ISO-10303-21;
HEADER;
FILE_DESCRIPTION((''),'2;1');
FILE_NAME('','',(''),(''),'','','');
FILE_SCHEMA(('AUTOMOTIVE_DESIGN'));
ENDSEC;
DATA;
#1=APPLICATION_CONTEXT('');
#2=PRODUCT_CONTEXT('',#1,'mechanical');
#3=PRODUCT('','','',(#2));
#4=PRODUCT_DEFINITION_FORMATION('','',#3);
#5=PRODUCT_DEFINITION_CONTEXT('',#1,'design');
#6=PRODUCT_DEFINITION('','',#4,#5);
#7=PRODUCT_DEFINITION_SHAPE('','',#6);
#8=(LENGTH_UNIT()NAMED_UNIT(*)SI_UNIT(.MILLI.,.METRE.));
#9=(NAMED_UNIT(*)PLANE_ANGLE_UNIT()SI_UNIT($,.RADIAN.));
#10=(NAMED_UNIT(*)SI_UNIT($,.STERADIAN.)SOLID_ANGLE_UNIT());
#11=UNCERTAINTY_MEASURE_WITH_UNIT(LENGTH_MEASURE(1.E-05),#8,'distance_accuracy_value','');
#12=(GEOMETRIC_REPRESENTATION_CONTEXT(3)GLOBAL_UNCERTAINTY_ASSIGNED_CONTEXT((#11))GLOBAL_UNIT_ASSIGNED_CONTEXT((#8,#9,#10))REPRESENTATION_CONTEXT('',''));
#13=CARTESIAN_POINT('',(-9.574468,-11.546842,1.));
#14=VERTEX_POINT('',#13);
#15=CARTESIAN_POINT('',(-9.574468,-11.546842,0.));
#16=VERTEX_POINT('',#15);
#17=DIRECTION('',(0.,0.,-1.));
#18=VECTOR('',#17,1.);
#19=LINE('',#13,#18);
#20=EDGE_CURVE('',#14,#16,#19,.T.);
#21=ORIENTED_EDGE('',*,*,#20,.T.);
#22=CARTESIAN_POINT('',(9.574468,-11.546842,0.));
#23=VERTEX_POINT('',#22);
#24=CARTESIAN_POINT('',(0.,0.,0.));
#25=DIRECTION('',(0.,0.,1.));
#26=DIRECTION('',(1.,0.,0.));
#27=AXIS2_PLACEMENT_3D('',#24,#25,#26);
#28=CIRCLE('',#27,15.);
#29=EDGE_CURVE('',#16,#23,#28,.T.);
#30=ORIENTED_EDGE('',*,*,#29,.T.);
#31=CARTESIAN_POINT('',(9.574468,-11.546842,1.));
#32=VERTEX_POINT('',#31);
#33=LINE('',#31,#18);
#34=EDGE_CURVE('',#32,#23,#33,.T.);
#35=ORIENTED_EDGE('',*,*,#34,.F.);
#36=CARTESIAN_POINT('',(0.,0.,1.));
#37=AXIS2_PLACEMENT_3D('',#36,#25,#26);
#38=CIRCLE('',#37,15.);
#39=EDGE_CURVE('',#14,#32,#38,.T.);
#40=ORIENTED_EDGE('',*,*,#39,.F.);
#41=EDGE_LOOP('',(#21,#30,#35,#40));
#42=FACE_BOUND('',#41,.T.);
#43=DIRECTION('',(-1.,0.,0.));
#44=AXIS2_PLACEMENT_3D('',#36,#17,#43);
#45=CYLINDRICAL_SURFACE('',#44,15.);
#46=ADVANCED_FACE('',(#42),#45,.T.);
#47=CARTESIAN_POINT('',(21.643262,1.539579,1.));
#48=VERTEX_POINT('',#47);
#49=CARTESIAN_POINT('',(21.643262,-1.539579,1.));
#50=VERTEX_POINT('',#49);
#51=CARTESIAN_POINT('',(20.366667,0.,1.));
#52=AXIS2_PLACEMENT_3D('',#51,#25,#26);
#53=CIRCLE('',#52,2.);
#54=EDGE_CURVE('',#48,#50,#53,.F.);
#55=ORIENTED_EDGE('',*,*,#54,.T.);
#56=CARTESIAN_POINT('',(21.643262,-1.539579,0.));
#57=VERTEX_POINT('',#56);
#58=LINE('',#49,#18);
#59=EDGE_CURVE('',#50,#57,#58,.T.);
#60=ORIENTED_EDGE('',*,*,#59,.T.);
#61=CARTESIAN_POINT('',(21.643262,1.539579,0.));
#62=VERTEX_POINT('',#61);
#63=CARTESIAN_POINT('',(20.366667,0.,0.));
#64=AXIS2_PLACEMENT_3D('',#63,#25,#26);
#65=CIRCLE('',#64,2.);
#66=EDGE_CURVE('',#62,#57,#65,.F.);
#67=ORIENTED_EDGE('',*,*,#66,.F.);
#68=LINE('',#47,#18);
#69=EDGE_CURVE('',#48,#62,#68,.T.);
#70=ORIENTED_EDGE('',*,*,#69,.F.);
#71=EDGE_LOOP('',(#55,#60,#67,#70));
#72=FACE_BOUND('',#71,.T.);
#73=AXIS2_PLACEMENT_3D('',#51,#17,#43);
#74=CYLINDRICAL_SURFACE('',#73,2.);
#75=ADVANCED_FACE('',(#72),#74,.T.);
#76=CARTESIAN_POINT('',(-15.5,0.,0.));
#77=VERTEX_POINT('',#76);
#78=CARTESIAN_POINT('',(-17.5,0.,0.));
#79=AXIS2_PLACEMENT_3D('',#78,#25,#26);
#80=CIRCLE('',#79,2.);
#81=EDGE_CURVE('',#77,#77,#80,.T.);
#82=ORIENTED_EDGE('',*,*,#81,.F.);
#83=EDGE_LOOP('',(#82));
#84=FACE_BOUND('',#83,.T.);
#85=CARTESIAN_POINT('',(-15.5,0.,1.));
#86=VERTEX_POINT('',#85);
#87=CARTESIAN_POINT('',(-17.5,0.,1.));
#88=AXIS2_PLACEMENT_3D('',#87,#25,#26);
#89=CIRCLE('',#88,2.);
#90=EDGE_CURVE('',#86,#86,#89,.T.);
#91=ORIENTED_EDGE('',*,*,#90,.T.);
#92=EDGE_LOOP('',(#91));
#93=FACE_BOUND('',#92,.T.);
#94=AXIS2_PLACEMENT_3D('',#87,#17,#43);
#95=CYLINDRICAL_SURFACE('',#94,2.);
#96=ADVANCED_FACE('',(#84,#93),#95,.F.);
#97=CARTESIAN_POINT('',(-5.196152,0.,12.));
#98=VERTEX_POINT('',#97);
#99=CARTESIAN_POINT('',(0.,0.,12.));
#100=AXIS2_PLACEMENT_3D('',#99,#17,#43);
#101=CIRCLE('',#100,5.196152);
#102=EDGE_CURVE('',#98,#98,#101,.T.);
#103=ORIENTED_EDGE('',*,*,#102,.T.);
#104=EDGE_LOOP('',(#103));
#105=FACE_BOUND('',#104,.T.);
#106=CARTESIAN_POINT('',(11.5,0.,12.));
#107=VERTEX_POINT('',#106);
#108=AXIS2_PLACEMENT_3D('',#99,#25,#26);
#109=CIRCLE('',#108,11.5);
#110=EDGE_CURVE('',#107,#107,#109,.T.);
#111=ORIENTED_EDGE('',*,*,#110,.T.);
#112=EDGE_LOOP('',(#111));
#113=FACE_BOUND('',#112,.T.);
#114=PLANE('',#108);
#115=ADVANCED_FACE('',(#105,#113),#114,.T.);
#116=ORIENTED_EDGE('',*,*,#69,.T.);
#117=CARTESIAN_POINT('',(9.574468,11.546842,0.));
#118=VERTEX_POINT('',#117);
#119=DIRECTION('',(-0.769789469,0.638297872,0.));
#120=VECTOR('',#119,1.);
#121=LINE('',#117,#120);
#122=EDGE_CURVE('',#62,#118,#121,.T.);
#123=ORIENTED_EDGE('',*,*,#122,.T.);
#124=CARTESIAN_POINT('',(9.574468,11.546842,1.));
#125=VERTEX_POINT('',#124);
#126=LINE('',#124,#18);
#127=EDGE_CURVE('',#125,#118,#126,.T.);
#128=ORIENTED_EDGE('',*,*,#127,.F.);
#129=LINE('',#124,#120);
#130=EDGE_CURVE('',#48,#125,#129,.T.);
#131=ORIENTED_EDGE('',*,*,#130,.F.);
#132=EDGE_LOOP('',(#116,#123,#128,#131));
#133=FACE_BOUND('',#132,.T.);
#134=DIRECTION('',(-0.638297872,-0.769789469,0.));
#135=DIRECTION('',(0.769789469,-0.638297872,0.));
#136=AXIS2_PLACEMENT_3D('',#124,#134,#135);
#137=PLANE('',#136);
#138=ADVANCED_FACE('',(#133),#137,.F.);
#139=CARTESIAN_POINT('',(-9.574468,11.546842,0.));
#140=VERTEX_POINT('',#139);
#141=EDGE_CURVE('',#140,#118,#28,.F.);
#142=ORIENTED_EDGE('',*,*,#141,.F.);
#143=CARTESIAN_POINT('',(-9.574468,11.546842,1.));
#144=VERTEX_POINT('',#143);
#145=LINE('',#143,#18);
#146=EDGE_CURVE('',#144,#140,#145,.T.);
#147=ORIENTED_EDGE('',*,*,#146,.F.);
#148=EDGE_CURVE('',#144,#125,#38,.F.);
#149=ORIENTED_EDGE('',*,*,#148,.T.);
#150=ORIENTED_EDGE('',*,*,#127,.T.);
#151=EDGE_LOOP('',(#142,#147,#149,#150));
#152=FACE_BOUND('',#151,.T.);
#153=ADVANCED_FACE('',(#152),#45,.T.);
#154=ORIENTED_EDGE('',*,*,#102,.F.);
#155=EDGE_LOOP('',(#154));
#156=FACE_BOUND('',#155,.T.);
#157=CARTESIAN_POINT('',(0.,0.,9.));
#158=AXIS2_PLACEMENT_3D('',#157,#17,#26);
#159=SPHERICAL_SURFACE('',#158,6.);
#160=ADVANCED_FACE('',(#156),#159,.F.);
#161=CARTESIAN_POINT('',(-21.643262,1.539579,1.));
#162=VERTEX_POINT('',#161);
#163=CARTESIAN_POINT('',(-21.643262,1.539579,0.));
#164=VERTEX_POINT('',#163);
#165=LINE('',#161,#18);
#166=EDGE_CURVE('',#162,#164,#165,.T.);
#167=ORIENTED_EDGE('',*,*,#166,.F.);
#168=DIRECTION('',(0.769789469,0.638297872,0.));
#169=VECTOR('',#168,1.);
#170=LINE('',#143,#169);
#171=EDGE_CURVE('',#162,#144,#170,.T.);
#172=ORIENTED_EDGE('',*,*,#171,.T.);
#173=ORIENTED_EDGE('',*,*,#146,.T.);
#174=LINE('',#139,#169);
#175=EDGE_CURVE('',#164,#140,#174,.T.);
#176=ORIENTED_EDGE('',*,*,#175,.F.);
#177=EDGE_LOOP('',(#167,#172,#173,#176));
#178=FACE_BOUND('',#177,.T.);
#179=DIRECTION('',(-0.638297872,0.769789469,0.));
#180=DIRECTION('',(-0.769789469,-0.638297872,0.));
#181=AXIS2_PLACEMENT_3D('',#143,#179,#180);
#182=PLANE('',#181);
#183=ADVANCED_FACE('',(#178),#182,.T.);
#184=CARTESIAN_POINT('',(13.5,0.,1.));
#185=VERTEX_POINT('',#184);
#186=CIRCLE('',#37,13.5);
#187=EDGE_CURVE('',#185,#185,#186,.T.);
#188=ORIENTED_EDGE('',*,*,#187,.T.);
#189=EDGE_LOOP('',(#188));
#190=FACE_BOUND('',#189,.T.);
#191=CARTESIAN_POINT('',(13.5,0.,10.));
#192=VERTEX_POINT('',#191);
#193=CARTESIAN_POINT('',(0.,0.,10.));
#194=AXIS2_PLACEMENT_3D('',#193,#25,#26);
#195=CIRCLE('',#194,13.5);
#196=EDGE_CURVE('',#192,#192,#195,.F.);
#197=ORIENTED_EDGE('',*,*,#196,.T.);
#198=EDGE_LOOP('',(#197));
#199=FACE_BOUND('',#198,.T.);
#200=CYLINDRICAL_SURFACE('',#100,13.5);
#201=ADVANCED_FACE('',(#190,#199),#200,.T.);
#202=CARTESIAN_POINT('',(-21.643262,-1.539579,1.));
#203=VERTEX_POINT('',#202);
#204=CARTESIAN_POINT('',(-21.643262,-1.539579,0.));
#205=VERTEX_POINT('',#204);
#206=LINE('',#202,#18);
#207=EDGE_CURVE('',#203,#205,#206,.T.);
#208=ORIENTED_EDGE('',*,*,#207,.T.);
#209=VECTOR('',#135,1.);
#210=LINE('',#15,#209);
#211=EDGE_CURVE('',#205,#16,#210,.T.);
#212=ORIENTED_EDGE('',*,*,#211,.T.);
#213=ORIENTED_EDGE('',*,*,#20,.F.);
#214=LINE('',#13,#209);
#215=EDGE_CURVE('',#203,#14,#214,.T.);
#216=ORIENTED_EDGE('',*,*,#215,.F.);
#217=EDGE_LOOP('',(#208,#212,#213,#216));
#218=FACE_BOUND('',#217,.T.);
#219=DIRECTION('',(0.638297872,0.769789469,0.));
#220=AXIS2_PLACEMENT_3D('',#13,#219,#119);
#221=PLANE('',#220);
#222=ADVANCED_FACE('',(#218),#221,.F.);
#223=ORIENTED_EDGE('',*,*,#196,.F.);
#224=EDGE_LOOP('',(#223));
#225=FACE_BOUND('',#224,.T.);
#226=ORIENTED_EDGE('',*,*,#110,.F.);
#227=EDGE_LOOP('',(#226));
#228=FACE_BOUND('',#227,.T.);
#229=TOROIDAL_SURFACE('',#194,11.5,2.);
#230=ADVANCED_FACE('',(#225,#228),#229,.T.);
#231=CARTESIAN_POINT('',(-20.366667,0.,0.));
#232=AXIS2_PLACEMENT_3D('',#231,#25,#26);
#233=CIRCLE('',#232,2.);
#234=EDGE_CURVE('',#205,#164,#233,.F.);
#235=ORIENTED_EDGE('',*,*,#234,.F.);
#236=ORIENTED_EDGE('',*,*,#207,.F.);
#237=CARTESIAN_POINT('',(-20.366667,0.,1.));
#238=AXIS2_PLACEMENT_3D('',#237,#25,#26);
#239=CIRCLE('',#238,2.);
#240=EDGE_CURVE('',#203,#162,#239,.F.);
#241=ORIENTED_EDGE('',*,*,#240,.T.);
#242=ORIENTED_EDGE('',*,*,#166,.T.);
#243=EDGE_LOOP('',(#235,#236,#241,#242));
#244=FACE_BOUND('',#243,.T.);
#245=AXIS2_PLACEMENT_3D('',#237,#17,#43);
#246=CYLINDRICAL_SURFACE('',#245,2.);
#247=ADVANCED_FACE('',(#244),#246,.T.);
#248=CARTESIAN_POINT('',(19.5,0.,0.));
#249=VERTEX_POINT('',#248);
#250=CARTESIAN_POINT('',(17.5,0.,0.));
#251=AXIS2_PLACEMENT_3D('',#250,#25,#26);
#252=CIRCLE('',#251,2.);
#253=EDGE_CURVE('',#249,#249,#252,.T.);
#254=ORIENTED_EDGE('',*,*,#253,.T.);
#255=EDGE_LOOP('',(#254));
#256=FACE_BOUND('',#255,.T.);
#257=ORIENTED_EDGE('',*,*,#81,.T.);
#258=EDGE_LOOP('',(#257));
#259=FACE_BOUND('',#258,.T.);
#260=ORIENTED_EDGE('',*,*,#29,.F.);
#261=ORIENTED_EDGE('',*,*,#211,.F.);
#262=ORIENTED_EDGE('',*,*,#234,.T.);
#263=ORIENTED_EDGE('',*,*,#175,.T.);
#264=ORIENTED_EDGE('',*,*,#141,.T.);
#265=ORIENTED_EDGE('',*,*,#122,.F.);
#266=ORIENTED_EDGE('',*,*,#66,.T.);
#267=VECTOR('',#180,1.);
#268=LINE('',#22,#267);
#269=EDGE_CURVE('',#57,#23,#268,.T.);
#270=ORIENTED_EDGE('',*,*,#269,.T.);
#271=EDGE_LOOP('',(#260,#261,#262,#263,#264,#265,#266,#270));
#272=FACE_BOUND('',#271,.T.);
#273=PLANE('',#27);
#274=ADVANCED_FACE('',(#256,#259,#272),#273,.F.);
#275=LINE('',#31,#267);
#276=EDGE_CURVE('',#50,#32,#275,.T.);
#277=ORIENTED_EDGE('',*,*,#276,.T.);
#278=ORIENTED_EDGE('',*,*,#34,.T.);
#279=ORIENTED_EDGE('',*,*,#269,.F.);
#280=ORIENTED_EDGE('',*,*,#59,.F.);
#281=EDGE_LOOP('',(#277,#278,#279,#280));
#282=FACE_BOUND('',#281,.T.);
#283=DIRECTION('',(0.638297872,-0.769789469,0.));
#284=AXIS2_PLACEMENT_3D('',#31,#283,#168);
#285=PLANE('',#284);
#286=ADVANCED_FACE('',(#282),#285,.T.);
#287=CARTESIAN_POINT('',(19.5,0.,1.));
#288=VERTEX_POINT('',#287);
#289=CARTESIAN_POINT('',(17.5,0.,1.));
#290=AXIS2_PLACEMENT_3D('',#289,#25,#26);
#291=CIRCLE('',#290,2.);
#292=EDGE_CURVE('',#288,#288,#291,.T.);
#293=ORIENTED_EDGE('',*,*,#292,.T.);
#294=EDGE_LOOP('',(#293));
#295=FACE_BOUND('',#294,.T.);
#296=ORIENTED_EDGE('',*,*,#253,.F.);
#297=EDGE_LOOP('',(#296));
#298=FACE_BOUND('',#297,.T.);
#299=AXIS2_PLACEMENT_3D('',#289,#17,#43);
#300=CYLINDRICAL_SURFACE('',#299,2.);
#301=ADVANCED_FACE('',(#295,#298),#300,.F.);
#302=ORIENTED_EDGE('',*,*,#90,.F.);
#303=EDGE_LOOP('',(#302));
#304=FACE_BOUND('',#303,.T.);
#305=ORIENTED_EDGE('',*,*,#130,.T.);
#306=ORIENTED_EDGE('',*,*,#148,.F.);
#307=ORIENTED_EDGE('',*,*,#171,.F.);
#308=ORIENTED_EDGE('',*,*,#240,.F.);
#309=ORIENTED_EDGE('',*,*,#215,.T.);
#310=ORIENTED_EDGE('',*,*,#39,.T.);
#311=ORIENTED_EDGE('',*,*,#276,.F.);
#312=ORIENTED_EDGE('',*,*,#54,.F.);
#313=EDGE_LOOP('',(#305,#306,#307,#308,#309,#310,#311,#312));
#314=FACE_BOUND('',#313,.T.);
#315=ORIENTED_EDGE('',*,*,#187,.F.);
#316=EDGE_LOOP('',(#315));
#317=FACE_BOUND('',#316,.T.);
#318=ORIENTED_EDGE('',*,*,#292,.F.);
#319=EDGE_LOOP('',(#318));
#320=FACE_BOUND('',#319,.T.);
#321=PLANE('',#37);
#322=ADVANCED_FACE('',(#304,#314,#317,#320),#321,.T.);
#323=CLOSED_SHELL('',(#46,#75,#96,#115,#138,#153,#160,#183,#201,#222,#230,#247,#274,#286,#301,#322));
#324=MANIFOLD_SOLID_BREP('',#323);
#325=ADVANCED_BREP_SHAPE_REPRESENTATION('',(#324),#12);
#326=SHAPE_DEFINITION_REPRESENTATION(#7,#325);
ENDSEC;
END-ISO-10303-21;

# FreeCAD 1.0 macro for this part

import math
import FreeCAD as App
import Part
import Sketcher

V = App.Vector


def edges_at(feature, points):
    """Names of the edges that pass closest to the given points."""
    edges = feature.Shape.Edges
    near = lambda p: min(range(len(edges)), key=lambda i: edges[i].distToShape(Part.Vertex(*p))[0])
    return sorted({f"Edge{near(p) + 1}" for p in points})

doc = App.newDocument("Part")
body = doc.addObject("PartDesign::Body", "Body")

sketch1 = body.newObject("Sketcher::SketchObject", "Sketch")
sketch1.AttachmentSupport = (doc.getObject("XY_Plane"), [""])
sketch1.MapMode = "FlatFace"
sketch1.addGeometry([
    Part.LineSegment(V(-9.574468, 11.546842, 0), V(-21.643262, 1.539579, 0)),
    Part.ArcOfCircle(Part.Circle(V(-20.366667, 0, 0), V(0, 0, 1), 2), math.radians(129.665013), math.radians(230.334987)),
    Part.LineSegment(V(-21.643262, -1.539579, 0), V(-9.574468, -11.546842, 0)),
    Part.ArcOfCircle(Part.Circle(V(0, 0, 0), V(0, 0, 1), 15), math.radians(-129.665013), math.radians(-50.334987)),
    Part.LineSegment(V(9.574468, -11.546842, 0), V(21.643262, -1.539579, 0)),
    Part.ArcOfCircle(Part.Circle(V(20.366667, 0, 0), V(0, 0, 1), 2), math.radians(-50.334987), math.radians(50.334987)),
    Part.LineSegment(V(21.643262, 1.539579, 0), V(9.574468, 11.546842, 0)),
    Part.ArcOfCircle(Part.Circle(V(0, 0, 0), V(0, 0, 1), 15), math.radians(50.334987), math.radians(129.665013)),
    Part.Circle(V(17.5, 0, 0), V(0, 0, 1), 2),
    Part.Circle(V(0, 0, 0), V(0, 0, 1), 13.5),
    Part.Circle(V(-17.5, 0, 0), V(0, 0, 1), 2),
], False)
sketch1.addConstraint([
    Sketcher.Constraint("Tangent", 0, 2, 1, 1),
    Sketcher.Constraint("Tangent", 1, 2, 2, 1),
    Sketcher.Constraint("Tangent", 2, 2, 3, 1),
    Sketcher.Constraint("Tangent", 3, 2, 4, 1),
    Sketcher.Constraint("Tangent", 4, 2, 5, 1),
    Sketcher.Constraint("Tangent", 5, 2, 6, 1),
    Sketcher.Constraint("Tangent", 6, 2, 7, 1),
    Sketcher.Constraint("Tangent", 7, 2, 0, 1),
    Sketcher.Constraint("Coincident", 3, 3, -1, 1),
    Sketcher.Constraint("Coincident", 7, 3, -1, 1),
    Sketcher.Constraint("Coincident", 9, 3, -1, 1),
    Sketcher.Constraint("Equal", 1, 5),
    Sketcher.Constraint("Equal", 3, 7),
    Sketcher.Constraint("Equal", 5, 8),
    Sketcher.Constraint("Equal", 8, 10),
    Sketcher.Constraint("Symmetric", 1, 3, 5, 3, -1, 1),
    Sketcher.Constraint("Symmetric", 8, 3, 10, 3, -1, 1),
    Sketcher.Constraint("PointOnObject", 1, 3, -1),
    Sketcher.Constraint("PointOnObject", 8, 3, -1),
    Sketcher.Constraint("Diameter", 8, 4.0),
    Sketcher.Constraint("Diameter", 9, 27.0),
    Sketcher.Constraint("Radius", 3, 15.0),
    Sketcher.Constraint("DistanceX", 10, 3, 8, 3, 35.0),
    Sketcher.Constraint("DistanceX", 3, 2, 5, 3, 10.792199),
])
pad1 = body.newObject("PartDesign::Pad", "Pad")
pad1.Profile = sketch1
pad1.Length = 1

sketch2 = body.newObject("Sketcher::SketchObject", "Sketch001")
sketch2.AttachmentSupport = (doc.getObject("XY_Plane"), [""])
sketch2.MapMode = "FlatFace"
sketch2.addGeometry(Part.Circle(V(0, 0, 0), V(0, 0, 1), 13.5), False)
sketch2.addConstraint([
    Sketcher.Constraint("Coincident", 0, 3, -1, 1),
    Sketcher.Constraint("Diameter", 0, 27.0),
])
pad2 = body.newObject("PartDesign::Pad", "Pad001")
pad2.Profile = sketch2
pad2.Length = 12
doc.recompute()

fillet = body.newObject("PartDesign::Fillet", "Fillet")
fillet.Base = (pad2, edges_at(pad2, [(-13.5, 0, 12)]))
fillet.Radius = 2

sketch3 = body.newObject("Sketcher::SketchObject", "Sketch002")
sketch3.AttachmentSupport = (doc.getObject("XZ_Plane"), [""])
sketch3.MapMode = "FlatFace"
sketch3.addGeometry([
    Part.LineSegment(V(0, 12, 0), V(5.196152, 12, 0)),
    Part.ArcOfCircle(Part.Circle(V(0, 9, 0), V(0, 0, 1), 6), math.radians(-90), math.radians(30)),
    Part.LineSegment(V(0, 3, 0), V(0, 12, 0)),
], False)
sketch3.addConstraint([
    Sketcher.Constraint("Coincident", 0, 2, 1, 2),
    Sketcher.Constraint("Coincident", 1, 1, 2, 1),
    Sketcher.Constraint("Coincident", 2, 2, 0, 1),
    Sketcher.Constraint("Horizontal", 0),
    Sketcher.Constraint("Vertical", 2),
    Sketcher.Constraint("PointOnObject", 1, 3, -2),
    Sketcher.Constraint("PointOnObject", 1, 1, -2),
    Sketcher.Constraint("Radius", 1, 6.0),
    Sketcher.Constraint("DistanceY", 2, 1, 2, 2, 9.0),
    Sketcher.Constraint("DistanceY", -1, 1, 1, 3, 9.0),
])
groove = body.newObject("PartDesign::Groove", "Groove")
groove.Profile = sketch3
groove.ReferenceAxis = (sketch3, ["V_Axis"])
groove.Angle = 360

doc.recompute()
